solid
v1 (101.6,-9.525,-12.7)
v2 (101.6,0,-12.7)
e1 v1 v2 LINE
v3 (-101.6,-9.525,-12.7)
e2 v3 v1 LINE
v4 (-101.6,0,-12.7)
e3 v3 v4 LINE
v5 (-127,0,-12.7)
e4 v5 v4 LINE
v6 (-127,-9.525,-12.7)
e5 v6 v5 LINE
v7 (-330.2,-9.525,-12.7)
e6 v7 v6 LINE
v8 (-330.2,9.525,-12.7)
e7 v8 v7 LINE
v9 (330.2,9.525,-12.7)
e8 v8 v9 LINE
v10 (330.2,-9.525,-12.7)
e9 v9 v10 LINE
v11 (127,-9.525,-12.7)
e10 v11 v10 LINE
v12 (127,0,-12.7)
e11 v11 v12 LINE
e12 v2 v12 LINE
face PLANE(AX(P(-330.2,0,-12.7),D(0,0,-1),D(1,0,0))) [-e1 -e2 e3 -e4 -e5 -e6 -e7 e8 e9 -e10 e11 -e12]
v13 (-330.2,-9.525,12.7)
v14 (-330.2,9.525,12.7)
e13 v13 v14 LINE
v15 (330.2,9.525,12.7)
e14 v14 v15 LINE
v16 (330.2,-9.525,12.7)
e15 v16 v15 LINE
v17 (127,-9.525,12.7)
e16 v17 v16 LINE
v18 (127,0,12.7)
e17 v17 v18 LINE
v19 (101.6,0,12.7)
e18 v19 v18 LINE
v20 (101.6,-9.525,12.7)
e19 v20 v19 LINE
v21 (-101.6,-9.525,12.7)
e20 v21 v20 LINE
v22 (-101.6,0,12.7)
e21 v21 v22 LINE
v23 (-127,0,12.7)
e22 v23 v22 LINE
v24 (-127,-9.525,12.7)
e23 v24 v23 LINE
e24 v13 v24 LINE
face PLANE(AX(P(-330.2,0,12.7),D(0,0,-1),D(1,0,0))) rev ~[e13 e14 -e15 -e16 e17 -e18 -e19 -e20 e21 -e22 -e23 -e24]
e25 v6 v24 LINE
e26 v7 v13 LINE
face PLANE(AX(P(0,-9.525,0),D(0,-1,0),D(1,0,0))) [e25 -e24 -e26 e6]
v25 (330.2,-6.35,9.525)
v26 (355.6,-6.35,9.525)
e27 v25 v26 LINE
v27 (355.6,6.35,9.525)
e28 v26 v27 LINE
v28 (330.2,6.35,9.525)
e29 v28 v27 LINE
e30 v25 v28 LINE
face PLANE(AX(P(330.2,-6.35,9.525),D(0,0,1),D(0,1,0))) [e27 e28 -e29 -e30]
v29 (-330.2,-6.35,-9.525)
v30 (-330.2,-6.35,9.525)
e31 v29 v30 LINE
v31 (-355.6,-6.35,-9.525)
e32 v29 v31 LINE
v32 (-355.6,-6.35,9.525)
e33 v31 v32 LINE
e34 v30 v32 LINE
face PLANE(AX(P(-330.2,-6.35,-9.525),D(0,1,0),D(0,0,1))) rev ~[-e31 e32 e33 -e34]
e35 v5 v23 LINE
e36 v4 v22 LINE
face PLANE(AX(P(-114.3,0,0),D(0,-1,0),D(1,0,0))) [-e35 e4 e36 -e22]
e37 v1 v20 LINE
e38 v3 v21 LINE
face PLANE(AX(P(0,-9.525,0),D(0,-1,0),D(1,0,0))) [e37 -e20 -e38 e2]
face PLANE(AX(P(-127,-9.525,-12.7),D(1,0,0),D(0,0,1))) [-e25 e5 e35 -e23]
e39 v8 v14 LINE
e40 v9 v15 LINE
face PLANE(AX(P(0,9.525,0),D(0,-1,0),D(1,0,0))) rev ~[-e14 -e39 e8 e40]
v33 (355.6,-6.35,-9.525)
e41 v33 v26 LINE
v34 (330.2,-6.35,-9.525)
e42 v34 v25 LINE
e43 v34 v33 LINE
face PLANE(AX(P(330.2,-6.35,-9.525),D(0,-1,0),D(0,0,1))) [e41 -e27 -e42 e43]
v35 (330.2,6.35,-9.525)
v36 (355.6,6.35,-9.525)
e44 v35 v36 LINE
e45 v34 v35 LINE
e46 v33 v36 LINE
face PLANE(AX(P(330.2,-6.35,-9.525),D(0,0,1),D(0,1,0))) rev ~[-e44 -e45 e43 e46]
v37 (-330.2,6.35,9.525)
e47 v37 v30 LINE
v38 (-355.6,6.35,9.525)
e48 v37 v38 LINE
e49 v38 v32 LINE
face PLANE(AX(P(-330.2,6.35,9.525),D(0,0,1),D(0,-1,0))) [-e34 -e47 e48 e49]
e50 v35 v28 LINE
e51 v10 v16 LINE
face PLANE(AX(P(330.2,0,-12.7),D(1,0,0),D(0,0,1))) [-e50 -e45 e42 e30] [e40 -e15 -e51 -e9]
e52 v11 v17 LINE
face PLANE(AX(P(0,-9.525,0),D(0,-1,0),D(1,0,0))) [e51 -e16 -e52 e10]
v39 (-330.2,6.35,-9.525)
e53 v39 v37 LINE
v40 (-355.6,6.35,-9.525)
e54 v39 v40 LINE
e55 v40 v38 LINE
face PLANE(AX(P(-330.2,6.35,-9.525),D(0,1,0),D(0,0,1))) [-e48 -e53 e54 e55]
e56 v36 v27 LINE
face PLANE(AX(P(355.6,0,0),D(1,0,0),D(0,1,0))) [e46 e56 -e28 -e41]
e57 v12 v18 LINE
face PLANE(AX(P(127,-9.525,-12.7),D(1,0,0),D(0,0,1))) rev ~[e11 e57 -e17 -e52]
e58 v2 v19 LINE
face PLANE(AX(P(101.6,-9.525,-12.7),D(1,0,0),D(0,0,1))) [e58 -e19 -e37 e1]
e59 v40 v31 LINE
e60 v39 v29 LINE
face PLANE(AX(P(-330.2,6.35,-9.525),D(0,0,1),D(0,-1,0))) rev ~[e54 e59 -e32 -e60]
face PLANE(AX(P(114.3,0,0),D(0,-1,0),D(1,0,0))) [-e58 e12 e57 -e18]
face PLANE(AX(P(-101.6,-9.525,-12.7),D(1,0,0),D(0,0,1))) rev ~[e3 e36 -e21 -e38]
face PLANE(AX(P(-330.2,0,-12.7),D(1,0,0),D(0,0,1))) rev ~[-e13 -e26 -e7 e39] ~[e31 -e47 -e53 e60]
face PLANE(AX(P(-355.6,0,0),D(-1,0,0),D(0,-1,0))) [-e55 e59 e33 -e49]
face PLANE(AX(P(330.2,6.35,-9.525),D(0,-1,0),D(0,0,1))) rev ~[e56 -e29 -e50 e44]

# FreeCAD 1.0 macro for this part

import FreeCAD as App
import Part
import Sketcher
Q = App.Units.Quantity

doc = App.newDocument("Part")
body = doc.addObject("PartDesign::Body", "Body")

sketch1 = body.newObject("Sketcher::SketchObject", "Sketch")
sketch1.AttachmentSupport = (doc.getObject("XZ_Plane"), [""])
sketch1.MapMode = "FlatFace"
sketch1.addGeometry([
    Part.LineSegment(App.Vector(-330, 13, 0), App.Vector(-330, -13, 0)),
    Part.LineSegment(App.Vector(-330, -13, 0), App.Vector(330, -13, 0)),
    Part.LineSegment(App.Vector(330, -13, 0), App.Vector(330, 13, 0)),
    Part.LineSegment(App.Vector(330, 13, 0), App.Vector(-330, 13, 0)),
], False)
sketch1.addConstraint([
    Sketcher.Constraint("Coincident", 0, 2, 1, 1),
    Sketcher.Constraint("Coincident", 1, 2, 2, 1),
    Sketcher.Constraint("Coincident", 2, 2, 3, 1),
    Sketcher.Constraint("Coincident", 3, 2, 0, 1),
    Sketcher.Constraint("Vertical", 0),
    Sketcher.Constraint("Horizontal", 1),
    Sketcher.Constraint("Vertical", 2),
    Sketcher.Constraint("Horizontal", 3),
    Sketcher.Constraint("Symmetric", 0, 2, 2, 2, -1, 1),
    Sketcher.Constraint("DistanceX", 1, 1, 1, 2, Q("26 in")),
    Sketcher.Constraint("DistanceY", 0, 2, 0, 1, Q("1 in")),
])
pad1 = body.newObject("PartDesign::Pad", "Pad")
pad1.Profile = sketch1
pad1.Length = Q("0.75 in")
pad1.Midplane = True

sketch2 = body.newObject("Sketcher::SketchObject", "Sketch001")
sketch2.AttachmentSupport = (doc.getObject("XZ_Plane"), [""])
sketch2.MapMode = "FlatFace"
sketch2.AttachmentOffset = App.Placement(App.Vector(0, 0, 0.375 * 25.4), App.Rotation())
sketch2.addGeometry([
    Part.LineSegment(App.Vector(-127, 13, 0), App.Vector(-127, -13, 0)),
    Part.LineSegment(App.Vector(-127, -13, 0), App.Vector(-102, -13, 0)),
    Part.LineSegment(App.Vector(-102, -13, 0), App.Vector(-102, 13, 0)),
    Part.LineSegment(App.Vector(-102, 13, 0), App.Vector(-127, 13, 0)),
], False)
sketch2.addConstraint([
    Sketcher.Constraint("Coincident", 0, 2, 1, 1),
    Sketcher.Constraint("Coincident", 1, 2, 2, 1),
    Sketcher.Constraint("Coincident", 2, 2, 3, 1),
    Sketcher.Constraint("Coincident", 3, 2, 0, 1),
    Sketcher.Constraint("Vertical", 0),
    Sketcher.Constraint("Horizontal", 1),
    Sketcher.Constraint("Vertical", 2),
    Sketcher.Constraint("Horizontal", 3),
    Sketcher.Constraint("Equal", 3, 0),
    Sketcher.Constraint("DistanceX", 1, 1, 1, 2, Q("1 in")),
    Sketcher.Constraint("DistanceX", 0, 2, -1, 1, Q("5 in")),
    Sketcher.Constraint("DistanceY", 0, 2, -1, 1, Q("0.5 in")),
])
pocket1 = body.newObject("PartDesign::Pocket", "Pocket")
pocket1.Profile = sketch2
pocket1.Length = Q("0.375 in")

sketch3 = body.newObject("Sketcher::SketchObject", "Sketch002")
sketch3.AttachmentSupport = (doc.getObject("XZ_Plane"), [""])
sketch3.MapMode = "FlatFace"
sketch3.AttachmentOffset = App.Placement(App.Vector(0, 0, 0.375 * 25.4), App.Rotation())
sketch3.addGeometry([
    Part.LineSegment(App.Vector(102, 13, 0), App.Vector(102, -13, 0)),
    Part.LineSegment(App.Vector(102, -13, 0), App.Vector(127, -13, 0)),
    Part.LineSegment(App.Vector(127, -13, 0), App.Vector(127, 13, 0)),
    Part.LineSegment(App.Vector(127, 13, 0), App.Vector(102, 13, 0)),
], False)
sketch3.addConstraint([
    Sketcher.Constraint("Coincident", 0, 2, 1, 1),
    Sketcher.Constraint("Coincident", 1, 2, 2, 1),
    Sketcher.Constraint("Coincident", 2, 2, 3, 1),
    Sketcher.Constraint("Coincident", 3, 2, 0, 1),
    Sketcher.Constraint("Vertical", 0),
    Sketcher.Constraint("Horizontal", 1),
    Sketcher.Constraint("Vertical", 2),
    Sketcher.Constraint("Horizontal", 3),
    Sketcher.Constraint("Equal", 3, 0),
    Sketcher.Constraint("DistanceX", 1, 1, 1, 2, Q("1 in")),
    Sketcher.Constraint("DistanceX", -1, 1, 0, 2, Q("4 in")),
    Sketcher.Constraint("DistanceY", 0, 2, -1, 1, Q("0.5 in")),
])
pocket2 = body.newObject("PartDesign::Pocket", "Pocket001")
pocket2.Profile = sketch3
pocket2.Length = Q("0.375 in")

sketch4 = body.newObject("Sketcher::SketchObject", "Sketch003")
sketch4.AttachmentSupport = (doc.getObject("YZ_Plane"), [""])
sketch4.MapMode = "FlatFace"
sketch4.AttachmentOffset = App.Placement(App.Vector(0, 0, -13 * 25.4), App.Rotation())
sketch4.addGeometry([
    Part.LineSegment(App.Vector(6, 10, 0), App.Vector(6, -10, 0)),
    Part.LineSegment(App.Vector(6, -10, 0), App.Vector(-6, -10, 0)),
    Part.LineSegment(App.Vector(-6, -10, 0), App.Vector(-6, 10, 0)),
    Part.LineSegment(App.Vector(-6, 10, 0), App.Vector(6, 10, 0)),
], False)
sketch4.addConstraint([
    Sketcher.Constraint("Coincident", 0, 2, 1, 1),
    Sketcher.Constraint("Coincident", 1, 2, 2, 1),
    Sketcher.Constraint("Coincident", 2, 2, 3, 1),
    Sketcher.Constraint("Coincident", 3, 2, 0, 1),
    Sketcher.Constraint("Vertical", 0),
    Sketcher.Constraint("Horizontal", 1),
    Sketcher.Constraint("Vertical", 2),
    Sketcher.Constraint("Horizontal", 3),
    Sketcher.Constraint("Symmetric", 0, 2, 2, 2, -1, 1),
    Sketcher.Constraint("DistanceX", 1, 2, 1, 1, Q("0.5 in")),
    Sketcher.Constraint("DistanceY", 0, 2, 0, 1, Q("0.75 in")),
])
pad2 = body.newObject("PartDesign::Pad", "Pad001")
pad2.Profile = sketch4
pad2.Length = Q("1 in")
pad2.Reversed = True

sketch5 = body.newObject("Sketcher::SketchObject", "Sketch004")
sketch5.AttachmentSupport = (doc.getObject("YZ_Plane"), [""])
sketch5.MapMode = "FlatFace"
sketch5.AttachmentOffset = App.Placement(App.Vector(0, 0, 13 * 25.4), App.Rotation())
sketch5.addGeometry([
    Part.LineSegment(App.Vector(-6, 10, 0), App.Vector(-6, -10, 0)),
    Part.LineSegment(App.Vector(-6, -10, 0), App.Vector(6, -10, 0)),
    Part.LineSegment(App.Vector(6, -10, 0), App.Vector(6, 10, 0)),
    Part.LineSegment(App.Vector(6, 10, 0), App.Vector(-6, 10, 0)),
], False)
sketch5.addConstraint([
    Sketcher.Constraint("Coincident", 0, 2, 1, 1),
    Sketcher.Constraint("Coincident", 1, 2, 2, 1),
    Sketcher.Constraint("Coincident", 2, 2, 3, 1),
    Sketcher.Constraint("Coincident", 3, 2, 0, 1),
    Sketcher.Constraint("Vertical", 0),
    Sketcher.Constraint("Horizontal", 1),
    Sketcher.Constraint("Vertical", 2),
    Sketcher.Constraint("Horizontal", 3),
    Sketcher.Constraint("Symmetric", 0, 2, 2, 2, -1, 1),
    Sketcher.Constraint("DistanceX", 1, 1, 1, 2, Q("0.5 in")),
    Sketcher.Constraint("DistanceY", 0, 2, 0, 1, Q("0.75 in")),
])
pad3 = body.newObject("PartDesign::Pad", "Pad002")
pad3.Profile = sketch5
pad3.Length = Q("1 in")

doc.recompute()
